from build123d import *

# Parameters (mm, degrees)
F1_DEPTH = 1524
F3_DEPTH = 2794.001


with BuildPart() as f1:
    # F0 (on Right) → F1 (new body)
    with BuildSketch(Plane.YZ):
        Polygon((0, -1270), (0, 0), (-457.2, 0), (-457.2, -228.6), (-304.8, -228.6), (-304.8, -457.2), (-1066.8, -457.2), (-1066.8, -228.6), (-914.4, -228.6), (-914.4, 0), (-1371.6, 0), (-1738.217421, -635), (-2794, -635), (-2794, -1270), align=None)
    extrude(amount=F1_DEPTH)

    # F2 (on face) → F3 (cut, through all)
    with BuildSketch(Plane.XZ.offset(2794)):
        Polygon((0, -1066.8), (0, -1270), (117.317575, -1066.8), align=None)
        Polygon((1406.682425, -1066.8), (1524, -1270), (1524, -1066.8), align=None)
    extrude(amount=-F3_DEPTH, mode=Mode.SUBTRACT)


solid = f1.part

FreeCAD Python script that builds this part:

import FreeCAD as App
import Part
import Sketcher

V = App.Vector
Q = App.Units.Quantity


def add_polygon(sketch, points):
    """Adds a closed chain of lines whose ends are joined by coincident constraints."""
    first, n = sketch.GeometryCount, len(points)
    for a, b in zip(points, points[1:] + points[:1]):
        sketch.addGeometry(Part.LineSegment(App.Vector(*a, 0), App.Vector(*b, 0)), False)
    for i in range(n):
        sketch.addConstraint(Sketcher.Constraint("Coincident", first + i, 2, first + (i + 1) % n, 1))

doc = App.newDocument("Part")
body = doc.addObject("PartDesign::Body", "Body")

sketch1 = doc.addObject("Sketcher::SketchObject", "Sketch")
body.addObject(sketch1)
sketch1.AttachmentSupport = (doc.YZ_Plane, [""])
sketch1.MapMode = "FlatFace"
add_polygon(sketch1, [(0, -1270), (0, 0), (-457, 0), (-457, -229), (-305, -229), (-305, -457), (-1067, -457), (-1067, -229), (-914, -229), (-914, 0), (-1372, 0), (-1738, -635), (-2794, -635), (-2794, -1270)])
sketch1.addConstraint([
    Sketcher.Constraint("Vertical", 0),
    Sketcher.Constraint("Horizontal", 1),
    Sketcher.Constraint("Vertical", 2),
    Sketcher.Constraint("Horizontal", 3),
    Sketcher.Constraint("Vertical", 4),
    Sketcher.Constraint("Horizontal", 5),
    Sketcher.Constraint("Vertical", 6),
    Sketcher.Constraint("Horizontal", 7),
    Sketcher.Constraint("Vertical", 8),
    Sketcher.Constraint("Horizontal", 9),
    Sketcher.Constraint("Horizontal", 11),
    Sketcher.Constraint("Vertical", 12),
    Sketcher.Constraint("Horizontal", 13),
    Sketcher.Constraint("Coincident", 0, 2, -1, 1),
    Sketcher.Constraint("PointOnObject", 8, 2, -1),
    Sketcher.Constraint("Horizontal", 3, 2, 6, 2),
    Sketcher.Constraint("Equal", 3, 7),
    Sketcher.Constraint("Equal", 1, 9),
    Sketcher.Constraint("Equal", 2, 4),
    Sketcher.Constraint("DistanceX", 1, 2, 1, 1, Q("18 in")),
    Sketcher.Constraint("DistanceX", 3, 1, 3, 2, Q("6 in")),
    Sketcher.Constraint("DistanceX", 5, 2, 5, 1, Q("30 in")),
    Sketcher.Constraint("DistanceX", 13, 1, 13, 2, Q("110 in")),
    Sketcher.Constraint("DistanceY", 0, 1, 0, 2, Q("50 in")),
    Sketcher.Constraint("DistanceY", 2, 2, 2, 1, Q("9 in")),
    Sketcher.Constraint("DistanceY", 12, 2, 12, 1, Q("25 in")),
    Sketcher.Constraint("Angle", 10, Q("-120 deg")),
])
pad1 = doc.addObject("PartDesign::Pad", "Pad")
body.addObject(pad1)
pad1.Profile = sketch1
pad1.Length = Q("60 in")

sketch2 = doc.addObject("Sketcher::SketchObject", "Sketch001")
body.addObject(sketch2)
sketch2.AttachmentSupport = (doc.XZ_Plane, [""])
sketch2.MapMode = "FlatFace"
sketch2.AttachmentOffset = App.Placement(V(0, 0, 110 * 25.4), App.Rotation())
add_polygon(sketch2, [(0, -1067), (0, -1270), (117, -1067)])
add_polygon(sketch2, [(1407, -1067), (1524, -1270), (1524, -1067)])
sketch2.addConstraint([
    Sketcher.Constraint("Vertical", 0),
    Sketcher.Constraint("Horizontal", 2),
    Sketcher.Constraint("Vertical", 4),
    Sketcher.Constraint("Horizontal", 5),
    Sketcher.Constraint("PointOnObject", 0, 2, -2),
    Sketcher.Constraint("Horizontal", 0, 2, 3, 2),
    Sketcher.Constraint("Horizontal", 2, 2, 4, 2),
    Sketcher.Constraint("Equal", 2, 5),
    Sketcher.Constraint("DistanceY", 0, 2, 0, 1, Q("8 in")),
    Sketcher.Constraint("DistanceY", 0, 2, -1, 1, Q("50 in")),
    Sketcher.Constraint("DistanceX", -1, 1, 3, 2, Q("60 in")),
    Sketcher.Constraint("Angle", 1, Q("60 deg")),
])
pocket1 = doc.addObject("PartDesign::Pocket", "Pocket")
body.addObject(pocket1)
pocket1.Profile = sketch2
pocket1.Type = "ThroughAll"

doc.recompute()
